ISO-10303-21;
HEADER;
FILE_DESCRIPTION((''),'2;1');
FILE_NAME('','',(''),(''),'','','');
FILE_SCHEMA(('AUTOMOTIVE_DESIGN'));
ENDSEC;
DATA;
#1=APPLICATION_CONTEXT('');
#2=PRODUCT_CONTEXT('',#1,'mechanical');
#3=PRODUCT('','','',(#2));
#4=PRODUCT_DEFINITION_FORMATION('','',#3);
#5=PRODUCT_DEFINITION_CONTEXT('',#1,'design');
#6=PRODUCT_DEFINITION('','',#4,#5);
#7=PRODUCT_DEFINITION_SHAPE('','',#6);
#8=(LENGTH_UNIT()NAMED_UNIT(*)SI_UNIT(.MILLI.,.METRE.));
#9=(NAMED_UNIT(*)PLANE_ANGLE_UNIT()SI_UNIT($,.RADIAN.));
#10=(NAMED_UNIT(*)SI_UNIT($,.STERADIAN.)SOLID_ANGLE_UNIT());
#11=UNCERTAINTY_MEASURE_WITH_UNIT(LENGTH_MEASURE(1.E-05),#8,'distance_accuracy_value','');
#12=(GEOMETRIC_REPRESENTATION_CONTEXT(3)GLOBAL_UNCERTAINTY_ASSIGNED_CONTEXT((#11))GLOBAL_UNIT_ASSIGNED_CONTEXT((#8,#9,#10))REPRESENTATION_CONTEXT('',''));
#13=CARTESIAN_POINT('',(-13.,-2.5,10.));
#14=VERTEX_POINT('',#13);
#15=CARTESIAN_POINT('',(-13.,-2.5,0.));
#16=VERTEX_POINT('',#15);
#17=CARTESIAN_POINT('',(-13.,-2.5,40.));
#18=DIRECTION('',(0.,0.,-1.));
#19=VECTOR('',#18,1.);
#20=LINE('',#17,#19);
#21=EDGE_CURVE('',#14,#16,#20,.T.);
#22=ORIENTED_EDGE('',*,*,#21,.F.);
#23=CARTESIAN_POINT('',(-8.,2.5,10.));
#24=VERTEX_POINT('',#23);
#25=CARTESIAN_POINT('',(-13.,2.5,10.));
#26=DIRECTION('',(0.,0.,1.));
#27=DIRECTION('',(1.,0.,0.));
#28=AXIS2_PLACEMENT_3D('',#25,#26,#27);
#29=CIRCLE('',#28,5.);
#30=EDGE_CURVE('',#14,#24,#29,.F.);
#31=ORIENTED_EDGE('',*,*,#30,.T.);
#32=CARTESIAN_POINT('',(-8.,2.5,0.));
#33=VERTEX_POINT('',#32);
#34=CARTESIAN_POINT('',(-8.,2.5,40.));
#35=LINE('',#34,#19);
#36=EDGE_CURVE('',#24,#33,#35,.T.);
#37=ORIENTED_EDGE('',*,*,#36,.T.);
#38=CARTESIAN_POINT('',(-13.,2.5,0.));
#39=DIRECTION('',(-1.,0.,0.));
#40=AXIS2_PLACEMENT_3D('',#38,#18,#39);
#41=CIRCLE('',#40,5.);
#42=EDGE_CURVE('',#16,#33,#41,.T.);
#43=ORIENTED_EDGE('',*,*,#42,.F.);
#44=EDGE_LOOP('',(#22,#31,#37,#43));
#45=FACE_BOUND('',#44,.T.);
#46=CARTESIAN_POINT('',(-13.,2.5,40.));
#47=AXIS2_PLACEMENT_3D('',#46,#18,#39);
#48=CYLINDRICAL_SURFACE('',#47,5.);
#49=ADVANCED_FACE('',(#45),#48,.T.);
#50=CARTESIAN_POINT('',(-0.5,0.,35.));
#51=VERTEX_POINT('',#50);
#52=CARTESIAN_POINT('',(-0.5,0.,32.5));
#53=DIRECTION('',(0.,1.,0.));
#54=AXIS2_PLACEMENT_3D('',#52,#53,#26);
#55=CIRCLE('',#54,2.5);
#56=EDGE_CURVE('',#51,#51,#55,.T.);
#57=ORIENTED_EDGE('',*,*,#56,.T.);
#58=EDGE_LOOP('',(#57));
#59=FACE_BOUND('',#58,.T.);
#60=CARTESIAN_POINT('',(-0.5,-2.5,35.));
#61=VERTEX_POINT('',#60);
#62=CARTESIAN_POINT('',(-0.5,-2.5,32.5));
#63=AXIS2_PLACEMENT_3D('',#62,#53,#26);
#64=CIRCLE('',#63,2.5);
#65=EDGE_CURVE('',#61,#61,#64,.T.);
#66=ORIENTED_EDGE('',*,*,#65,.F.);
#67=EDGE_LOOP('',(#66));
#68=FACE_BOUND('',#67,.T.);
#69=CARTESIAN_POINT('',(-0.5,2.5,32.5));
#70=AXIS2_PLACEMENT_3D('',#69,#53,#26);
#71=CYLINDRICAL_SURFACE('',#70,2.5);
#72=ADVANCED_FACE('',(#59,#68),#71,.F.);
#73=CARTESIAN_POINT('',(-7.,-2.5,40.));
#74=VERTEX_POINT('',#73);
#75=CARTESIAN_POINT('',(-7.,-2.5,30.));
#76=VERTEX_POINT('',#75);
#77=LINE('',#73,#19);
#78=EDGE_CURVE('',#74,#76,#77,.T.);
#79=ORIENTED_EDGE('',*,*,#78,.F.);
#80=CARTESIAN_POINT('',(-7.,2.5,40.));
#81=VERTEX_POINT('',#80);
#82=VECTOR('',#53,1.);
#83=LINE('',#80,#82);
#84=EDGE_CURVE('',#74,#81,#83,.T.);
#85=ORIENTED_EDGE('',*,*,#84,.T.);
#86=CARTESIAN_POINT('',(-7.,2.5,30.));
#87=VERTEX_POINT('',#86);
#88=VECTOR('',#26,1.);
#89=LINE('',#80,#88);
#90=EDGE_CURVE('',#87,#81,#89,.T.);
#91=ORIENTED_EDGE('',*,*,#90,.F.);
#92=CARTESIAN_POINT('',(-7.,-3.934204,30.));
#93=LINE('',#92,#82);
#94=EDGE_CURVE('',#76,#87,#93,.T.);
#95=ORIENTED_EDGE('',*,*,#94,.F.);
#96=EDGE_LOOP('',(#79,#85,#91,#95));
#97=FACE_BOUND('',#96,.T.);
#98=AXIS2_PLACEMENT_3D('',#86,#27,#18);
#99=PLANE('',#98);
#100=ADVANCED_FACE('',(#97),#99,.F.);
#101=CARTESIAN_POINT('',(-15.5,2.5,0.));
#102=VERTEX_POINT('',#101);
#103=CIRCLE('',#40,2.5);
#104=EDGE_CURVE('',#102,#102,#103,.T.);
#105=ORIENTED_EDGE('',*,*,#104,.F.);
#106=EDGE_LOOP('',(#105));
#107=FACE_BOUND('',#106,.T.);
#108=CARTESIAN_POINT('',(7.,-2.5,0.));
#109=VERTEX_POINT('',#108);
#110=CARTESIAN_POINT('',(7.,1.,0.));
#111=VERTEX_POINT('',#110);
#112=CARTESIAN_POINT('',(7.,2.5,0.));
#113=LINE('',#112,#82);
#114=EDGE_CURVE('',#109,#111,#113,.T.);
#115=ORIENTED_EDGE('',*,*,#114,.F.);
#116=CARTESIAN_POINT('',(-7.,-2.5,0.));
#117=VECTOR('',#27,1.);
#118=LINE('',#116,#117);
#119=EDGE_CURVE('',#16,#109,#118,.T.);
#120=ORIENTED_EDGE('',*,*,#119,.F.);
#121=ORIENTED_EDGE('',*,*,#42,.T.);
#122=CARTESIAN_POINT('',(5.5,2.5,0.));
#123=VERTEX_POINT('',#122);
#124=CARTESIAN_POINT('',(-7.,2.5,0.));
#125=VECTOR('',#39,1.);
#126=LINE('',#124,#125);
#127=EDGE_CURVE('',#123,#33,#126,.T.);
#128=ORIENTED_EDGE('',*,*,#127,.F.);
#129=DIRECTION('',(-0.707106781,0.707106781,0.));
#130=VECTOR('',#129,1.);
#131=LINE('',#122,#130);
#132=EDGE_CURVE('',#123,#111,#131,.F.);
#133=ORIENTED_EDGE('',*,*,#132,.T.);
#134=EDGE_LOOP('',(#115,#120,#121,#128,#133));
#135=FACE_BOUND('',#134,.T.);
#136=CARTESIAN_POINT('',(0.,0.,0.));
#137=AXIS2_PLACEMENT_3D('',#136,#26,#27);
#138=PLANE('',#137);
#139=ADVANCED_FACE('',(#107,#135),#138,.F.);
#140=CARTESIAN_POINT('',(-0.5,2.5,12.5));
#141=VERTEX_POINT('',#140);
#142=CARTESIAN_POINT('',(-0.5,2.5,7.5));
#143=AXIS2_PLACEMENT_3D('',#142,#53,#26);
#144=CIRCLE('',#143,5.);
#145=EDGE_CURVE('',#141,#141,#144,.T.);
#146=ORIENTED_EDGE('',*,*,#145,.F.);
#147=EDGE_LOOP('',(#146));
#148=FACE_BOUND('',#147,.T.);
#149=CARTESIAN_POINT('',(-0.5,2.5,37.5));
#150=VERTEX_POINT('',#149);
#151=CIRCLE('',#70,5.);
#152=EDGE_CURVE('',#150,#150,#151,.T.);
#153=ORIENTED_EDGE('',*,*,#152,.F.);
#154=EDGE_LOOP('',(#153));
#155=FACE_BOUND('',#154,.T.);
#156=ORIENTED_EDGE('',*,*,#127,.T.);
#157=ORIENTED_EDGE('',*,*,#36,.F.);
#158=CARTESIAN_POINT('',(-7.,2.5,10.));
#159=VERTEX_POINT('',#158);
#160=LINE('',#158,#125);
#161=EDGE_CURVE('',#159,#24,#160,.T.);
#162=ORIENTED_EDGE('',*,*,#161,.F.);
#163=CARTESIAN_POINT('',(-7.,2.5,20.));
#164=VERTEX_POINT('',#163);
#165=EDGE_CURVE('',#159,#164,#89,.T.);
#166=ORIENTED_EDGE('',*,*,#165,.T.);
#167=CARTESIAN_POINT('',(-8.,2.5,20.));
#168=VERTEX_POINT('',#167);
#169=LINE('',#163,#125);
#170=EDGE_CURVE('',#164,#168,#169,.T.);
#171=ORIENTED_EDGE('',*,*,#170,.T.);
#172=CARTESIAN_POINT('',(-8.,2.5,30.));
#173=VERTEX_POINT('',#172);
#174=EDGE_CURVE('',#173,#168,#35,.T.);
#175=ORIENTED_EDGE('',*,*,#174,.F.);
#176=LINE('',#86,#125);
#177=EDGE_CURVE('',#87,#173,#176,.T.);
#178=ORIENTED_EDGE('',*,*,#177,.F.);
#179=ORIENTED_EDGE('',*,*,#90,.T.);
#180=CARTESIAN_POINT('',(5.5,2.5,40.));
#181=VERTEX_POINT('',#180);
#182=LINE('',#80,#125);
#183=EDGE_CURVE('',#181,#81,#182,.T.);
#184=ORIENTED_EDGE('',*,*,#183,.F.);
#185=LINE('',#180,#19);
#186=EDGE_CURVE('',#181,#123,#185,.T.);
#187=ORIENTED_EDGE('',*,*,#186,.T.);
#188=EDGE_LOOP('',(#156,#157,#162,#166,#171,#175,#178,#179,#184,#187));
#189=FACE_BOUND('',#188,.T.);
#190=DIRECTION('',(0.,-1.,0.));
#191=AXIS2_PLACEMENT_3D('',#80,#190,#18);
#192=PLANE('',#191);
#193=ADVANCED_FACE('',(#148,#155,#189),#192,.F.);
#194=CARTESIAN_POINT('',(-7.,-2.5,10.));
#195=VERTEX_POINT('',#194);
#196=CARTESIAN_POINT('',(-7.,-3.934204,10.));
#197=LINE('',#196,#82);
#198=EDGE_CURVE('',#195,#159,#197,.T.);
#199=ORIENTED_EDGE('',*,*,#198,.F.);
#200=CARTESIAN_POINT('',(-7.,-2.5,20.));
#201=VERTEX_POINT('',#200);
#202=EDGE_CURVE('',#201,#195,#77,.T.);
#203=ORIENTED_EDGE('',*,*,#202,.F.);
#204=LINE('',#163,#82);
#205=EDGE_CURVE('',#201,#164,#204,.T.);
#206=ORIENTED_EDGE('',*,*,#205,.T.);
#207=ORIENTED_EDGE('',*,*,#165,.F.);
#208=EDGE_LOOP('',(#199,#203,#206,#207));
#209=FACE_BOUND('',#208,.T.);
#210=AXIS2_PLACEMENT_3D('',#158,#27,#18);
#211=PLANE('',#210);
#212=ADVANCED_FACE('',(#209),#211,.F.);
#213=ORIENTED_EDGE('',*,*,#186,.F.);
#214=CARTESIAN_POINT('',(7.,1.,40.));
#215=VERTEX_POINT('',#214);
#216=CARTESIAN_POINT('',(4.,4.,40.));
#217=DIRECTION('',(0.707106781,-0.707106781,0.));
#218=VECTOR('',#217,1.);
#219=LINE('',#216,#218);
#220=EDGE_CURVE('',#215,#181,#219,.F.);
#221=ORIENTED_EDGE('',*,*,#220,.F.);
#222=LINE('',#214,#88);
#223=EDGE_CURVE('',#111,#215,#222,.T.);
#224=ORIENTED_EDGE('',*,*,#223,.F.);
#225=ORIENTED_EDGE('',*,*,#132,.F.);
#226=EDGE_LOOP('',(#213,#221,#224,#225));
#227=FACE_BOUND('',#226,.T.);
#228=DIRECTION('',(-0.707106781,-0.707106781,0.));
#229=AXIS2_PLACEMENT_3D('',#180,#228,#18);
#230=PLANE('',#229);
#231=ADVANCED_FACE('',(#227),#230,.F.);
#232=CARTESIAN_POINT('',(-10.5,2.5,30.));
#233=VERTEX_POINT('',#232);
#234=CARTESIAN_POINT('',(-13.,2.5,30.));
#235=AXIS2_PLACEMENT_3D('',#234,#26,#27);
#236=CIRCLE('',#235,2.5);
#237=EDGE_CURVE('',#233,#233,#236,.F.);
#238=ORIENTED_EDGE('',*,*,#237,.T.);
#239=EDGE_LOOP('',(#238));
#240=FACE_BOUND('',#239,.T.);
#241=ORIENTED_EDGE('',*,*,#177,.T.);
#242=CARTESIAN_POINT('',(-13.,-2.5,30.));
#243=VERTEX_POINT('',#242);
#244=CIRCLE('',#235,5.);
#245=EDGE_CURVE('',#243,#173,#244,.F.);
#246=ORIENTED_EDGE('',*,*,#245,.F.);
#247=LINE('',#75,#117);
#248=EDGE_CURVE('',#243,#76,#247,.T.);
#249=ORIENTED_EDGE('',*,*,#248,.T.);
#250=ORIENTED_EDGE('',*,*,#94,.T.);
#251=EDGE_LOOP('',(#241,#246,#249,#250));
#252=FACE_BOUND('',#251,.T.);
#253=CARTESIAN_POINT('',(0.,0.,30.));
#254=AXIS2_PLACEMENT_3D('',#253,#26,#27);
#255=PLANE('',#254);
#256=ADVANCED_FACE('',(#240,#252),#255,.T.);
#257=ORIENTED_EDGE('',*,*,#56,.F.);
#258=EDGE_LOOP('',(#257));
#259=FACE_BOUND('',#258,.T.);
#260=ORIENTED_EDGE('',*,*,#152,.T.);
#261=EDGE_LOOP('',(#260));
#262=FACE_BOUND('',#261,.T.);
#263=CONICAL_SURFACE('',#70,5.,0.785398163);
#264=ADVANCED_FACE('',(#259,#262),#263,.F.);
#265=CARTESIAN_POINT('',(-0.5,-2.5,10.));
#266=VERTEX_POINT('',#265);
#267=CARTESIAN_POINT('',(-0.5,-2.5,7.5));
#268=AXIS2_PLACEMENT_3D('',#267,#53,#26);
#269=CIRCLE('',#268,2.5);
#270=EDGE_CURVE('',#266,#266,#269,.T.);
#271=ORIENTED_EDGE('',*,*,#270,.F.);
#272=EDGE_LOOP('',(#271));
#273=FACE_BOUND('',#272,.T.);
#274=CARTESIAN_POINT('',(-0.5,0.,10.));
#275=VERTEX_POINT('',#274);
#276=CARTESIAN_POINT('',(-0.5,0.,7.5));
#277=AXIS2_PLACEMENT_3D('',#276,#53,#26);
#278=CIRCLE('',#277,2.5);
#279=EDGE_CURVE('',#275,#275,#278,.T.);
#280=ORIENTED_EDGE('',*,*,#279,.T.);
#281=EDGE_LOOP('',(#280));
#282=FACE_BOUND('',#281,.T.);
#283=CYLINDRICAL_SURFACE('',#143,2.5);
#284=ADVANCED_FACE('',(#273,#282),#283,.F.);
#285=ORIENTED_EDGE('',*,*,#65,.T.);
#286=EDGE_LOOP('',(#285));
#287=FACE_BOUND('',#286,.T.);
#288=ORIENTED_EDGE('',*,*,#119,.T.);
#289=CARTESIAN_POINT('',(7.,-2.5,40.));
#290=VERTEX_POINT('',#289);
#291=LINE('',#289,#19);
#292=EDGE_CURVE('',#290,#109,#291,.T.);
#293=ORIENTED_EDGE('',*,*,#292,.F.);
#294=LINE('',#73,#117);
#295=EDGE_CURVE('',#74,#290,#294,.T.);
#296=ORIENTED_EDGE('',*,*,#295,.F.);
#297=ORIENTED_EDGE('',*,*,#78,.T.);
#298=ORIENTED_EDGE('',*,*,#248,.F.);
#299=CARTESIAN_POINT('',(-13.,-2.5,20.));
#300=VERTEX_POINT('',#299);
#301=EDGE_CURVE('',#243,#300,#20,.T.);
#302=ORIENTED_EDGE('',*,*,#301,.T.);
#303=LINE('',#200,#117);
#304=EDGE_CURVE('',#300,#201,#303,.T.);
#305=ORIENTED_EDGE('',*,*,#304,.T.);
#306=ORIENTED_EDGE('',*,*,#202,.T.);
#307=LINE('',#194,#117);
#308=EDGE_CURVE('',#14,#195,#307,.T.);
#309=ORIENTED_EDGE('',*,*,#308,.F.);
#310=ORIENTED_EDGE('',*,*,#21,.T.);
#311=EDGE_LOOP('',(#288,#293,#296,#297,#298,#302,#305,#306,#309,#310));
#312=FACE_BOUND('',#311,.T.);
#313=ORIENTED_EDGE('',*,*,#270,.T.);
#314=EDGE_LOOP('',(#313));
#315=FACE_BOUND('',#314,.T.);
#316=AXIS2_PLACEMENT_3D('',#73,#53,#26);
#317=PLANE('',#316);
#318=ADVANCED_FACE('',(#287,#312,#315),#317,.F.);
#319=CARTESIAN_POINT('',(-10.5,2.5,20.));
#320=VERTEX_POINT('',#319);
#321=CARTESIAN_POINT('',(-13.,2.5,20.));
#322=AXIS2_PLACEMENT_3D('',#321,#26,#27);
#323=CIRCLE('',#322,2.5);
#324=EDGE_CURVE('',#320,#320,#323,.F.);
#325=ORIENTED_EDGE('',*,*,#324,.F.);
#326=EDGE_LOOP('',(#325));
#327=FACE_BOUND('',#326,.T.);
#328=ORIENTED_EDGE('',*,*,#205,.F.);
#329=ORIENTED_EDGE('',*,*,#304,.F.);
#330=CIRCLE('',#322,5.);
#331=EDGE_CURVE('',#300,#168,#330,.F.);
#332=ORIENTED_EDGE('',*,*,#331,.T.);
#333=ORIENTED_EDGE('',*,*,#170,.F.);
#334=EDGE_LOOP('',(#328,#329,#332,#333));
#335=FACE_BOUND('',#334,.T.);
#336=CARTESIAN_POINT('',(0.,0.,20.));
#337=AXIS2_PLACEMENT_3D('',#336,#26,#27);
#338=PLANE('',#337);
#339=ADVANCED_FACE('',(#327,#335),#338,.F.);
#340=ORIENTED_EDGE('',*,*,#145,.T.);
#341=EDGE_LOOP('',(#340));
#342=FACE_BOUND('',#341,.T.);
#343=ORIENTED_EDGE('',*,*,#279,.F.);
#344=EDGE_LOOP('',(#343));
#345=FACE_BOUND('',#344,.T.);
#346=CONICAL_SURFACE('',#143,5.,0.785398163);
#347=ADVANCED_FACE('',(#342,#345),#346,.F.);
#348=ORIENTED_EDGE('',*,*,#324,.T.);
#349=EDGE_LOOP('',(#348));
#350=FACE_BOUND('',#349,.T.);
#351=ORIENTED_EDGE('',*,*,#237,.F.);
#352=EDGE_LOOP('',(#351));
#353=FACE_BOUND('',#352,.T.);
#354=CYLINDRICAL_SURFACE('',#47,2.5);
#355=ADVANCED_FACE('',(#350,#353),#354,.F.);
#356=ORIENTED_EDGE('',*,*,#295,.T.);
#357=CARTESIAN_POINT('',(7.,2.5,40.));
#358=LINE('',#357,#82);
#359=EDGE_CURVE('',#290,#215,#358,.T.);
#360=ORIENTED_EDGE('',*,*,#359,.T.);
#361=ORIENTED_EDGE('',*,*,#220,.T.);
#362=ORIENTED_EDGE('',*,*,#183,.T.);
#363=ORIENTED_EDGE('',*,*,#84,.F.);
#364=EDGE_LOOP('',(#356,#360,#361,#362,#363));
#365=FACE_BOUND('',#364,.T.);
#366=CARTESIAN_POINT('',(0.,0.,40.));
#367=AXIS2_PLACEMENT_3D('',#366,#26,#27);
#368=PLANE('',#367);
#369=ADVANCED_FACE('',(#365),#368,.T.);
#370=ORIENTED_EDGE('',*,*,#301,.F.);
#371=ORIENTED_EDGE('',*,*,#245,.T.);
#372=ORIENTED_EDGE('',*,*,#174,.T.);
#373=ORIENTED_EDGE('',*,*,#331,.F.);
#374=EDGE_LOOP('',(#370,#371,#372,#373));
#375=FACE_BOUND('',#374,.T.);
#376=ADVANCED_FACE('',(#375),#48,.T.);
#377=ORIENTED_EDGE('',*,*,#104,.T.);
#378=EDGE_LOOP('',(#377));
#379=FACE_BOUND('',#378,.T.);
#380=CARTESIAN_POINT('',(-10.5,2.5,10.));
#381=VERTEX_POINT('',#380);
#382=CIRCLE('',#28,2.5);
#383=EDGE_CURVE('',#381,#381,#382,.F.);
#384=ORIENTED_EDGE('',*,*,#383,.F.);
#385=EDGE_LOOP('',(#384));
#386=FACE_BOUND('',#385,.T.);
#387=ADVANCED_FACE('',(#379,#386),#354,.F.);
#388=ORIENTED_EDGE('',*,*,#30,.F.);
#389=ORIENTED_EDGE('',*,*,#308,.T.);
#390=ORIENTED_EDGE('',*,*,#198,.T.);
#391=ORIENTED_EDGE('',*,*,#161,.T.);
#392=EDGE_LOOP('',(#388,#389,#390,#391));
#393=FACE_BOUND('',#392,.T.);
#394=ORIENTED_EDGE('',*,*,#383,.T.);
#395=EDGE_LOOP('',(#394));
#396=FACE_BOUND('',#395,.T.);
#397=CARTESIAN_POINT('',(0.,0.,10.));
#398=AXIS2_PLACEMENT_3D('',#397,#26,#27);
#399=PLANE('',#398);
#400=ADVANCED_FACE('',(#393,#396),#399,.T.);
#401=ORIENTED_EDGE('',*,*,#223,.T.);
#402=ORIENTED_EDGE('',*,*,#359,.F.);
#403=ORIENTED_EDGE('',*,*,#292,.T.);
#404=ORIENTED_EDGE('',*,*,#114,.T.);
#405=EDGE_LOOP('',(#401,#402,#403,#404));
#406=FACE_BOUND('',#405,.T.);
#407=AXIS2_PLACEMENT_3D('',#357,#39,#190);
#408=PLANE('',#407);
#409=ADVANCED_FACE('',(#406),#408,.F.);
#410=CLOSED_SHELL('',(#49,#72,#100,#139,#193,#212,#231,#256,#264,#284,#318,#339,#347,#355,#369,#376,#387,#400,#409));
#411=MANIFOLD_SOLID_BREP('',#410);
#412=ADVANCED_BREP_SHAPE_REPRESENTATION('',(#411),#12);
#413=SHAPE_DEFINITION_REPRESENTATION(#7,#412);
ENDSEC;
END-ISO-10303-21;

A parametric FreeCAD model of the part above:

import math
import FreeCAD as App
import Part
import Sketcher

V = App.Vector


def edges_at(feature, points):
    """Names of the edges that pass closest to the given points."""
    edges = feature.Shape.Edges
    near = lambda p: min(range(len(edges)), key=lambda i: edges[i].distToShape(Part.Vertex(*p))[0])
    return sorted({f"Edge{near(p) + 1}" for p in points})


def add_polygon(sketch, points):
    """Adds a closed chain of lines whose ends are joined by coincident constraints."""
    first, n = sketch.GeometryCount, len(points)
    for a, b in zip(points, points[1:] + points[:1]):
        sketch.addGeometry(Part.LineSegment(App.Vector(*a, 0), App.Vector(*b, 0)), False)
    for i in range(n):
        sketch.addConstraint(Sketcher.Constraint("Coincident", first + i, 2, first + (i + 1) % n, 1))

doc = App.newDocument("Part")
body = doc.addObject("PartDesign::Body", "Body")

sketch1 = body.newObject("Sketcher::SketchObject", "Sketch")
sketch1.AttachmentSupport = (doc.getObject("XY_Plane"), [""])
sketch1.MapMode = "FlatFace"
add_polygon(sketch1, [(-7, 2.5), (-7, -2.5), (7, -2.5), (7, 2.5)])
sketch1.addConstraint(Sketcher.Constraint("Vertical", 0))
sketch1.addConstraint(Sketcher.Constraint("Horizontal", 1))
sketch1.addConstraint(Sketcher.Constraint("Vertical", 2))
sketch1.addConstraint(Sketcher.Constraint("Horizontal", 3))
sketch1.addConstraint(Sketcher.Constraint("Symmetric", 0, 2, 2, 2, -1, 1))
sketch1.addConstraint(Sketcher.Constraint("DistanceX", 1, 1, 1, 2, 14.0))
sketch1.addConstraint(Sketcher.Constraint("DistanceY", 0, 2, 0, 1, 5.0))
pad1 = body.newObject("PartDesign::Pad", "Pad")
pad1.Profile = sketch1
pad1.Length = 40

sketch2 = body.newObject("Sketcher::SketchObject", "Sketch001")
sketch2.AttachmentSupport = (doc.getObject("XY_Plane"), [""])
sketch2.MapMode = "FlatFace"
sketch2.addGeometry(Part.LineSegment(V(-8, 2.5, 0), V(-7, 2.5, 0)), False)
sketch2.addGeometry(Part.LineSegment(V(-7, 2.5, 0), V(-7, -2.5, 0)), False)
sketch2.addGeometry(Part.LineSegment(V(-7, -2.5, 0), V(-13, -2.5, 0)), False)
sketch2.addGeometry(Part.ArcOfCircle(Part.Circle(V(-13, 2.5, 0), V(0, 0, 1), 5), math.radians(0), math.radians(270)), False)
sketch2.addGeometry(Part.Circle(V(-13, 2.5, 0), V(0, 0, 1), 2.5), False)
sketch2.addConstraint(Sketcher.Constraint("Coincident", 0, 2, 1, 1))
sketch2.addConstraint(Sketcher.Constraint("Coincident", 1, 2, 2, 1))
sketch2.addConstraint(Sketcher.Constraint("Tangent", 2, 2, 3, 2))
sketch2.addConstraint(Sketcher.Constraint("Coincident", 3, 1, 0, 1))
sketch2.addConstraint(Sketcher.Constraint("Horizontal", 0))
sketch2.addConstraint(Sketcher.Constraint("Vertical", 1))
sketch2.addConstraint(Sketcher.Constraint("Horizontal", 2))
sketch2.addConstraint(Sketcher.Constraint("Coincident", 4, 3, 3, 3))
sketch2.addConstraint(Sketcher.Constraint("Horizontal", 4, 3, 0, 2))
sketch2.addConstraint(Sketcher.Constraint("Diameter", 4, 5.0))
sketch2.addConstraint(Sketcher.Constraint("Radius", 3, 5.0))
sketch2.addConstraint(Sketcher.Constraint("DistanceX", 0, 1, 0, 2, 1.0))
sketch2.addConstraint(Sketcher.Constraint("DistanceX", 3, 3, -1, 1, 13.0))
sketch2.addConstraint(Sketcher.Constraint("DistanceY", -1, 1, 3, 3, 2.5))
pad2 = body.newObject("PartDesign::Pad", "Pad001")
pad2.Profile = sketch2
pad2.Length = 40

sketch3 = body.newObject("Sketcher::SketchObject", "Sketch002")
sketch3.AttachmentSupport = (doc.getObject("XY_Plane"), [""])
sketch3.MapMode = "FlatFace"
sketch3.AttachmentOffset = App.Placement(V(0, 0, 40), App.Rotation())
add_polygon(sketch3, [(-7, 10.867672), (-20.063851, 10.867672), (-20.063851, -3.934204), (-7, -3.934204)])
sketch3.addConstraint(Sketcher.Constraint("Horizontal", 0))
sketch3.addConstraint(Sketcher.Constraint("Vertical", 1))
sketch3.addConstraint(Sketcher.Constraint("Horizontal", 2))
sketch3.addConstraint(Sketcher.Constraint("Vertical", 3))
sketch3.addConstraint(Sketcher.Constraint("DistanceX", 2, 2, -1, 1, 7.0))
sketch3.addConstraint(Sketcher.Constraint("DistanceX", 0, 2, 0, 1, 13.063851))
sketch3.addConstraint(Sketcher.Constraint("DistanceY", 1, 2, 1, 1, 14.801877))
sketch3.addConstraint(Sketcher.Constraint("DistanceY", -1, 1, 0, 2, 10.867672))
pocket1 = body.newObject("PartDesign::Pocket", "Pocket")
pocket1.Profile = sketch3
pocket1.Length = 10
doc.recompute()

linearpattern = body.newObject("PartDesign::LinearPattern", "LinearPattern")
linearpattern.Originals = [pocket1]
linearpattern.Direction = (doc.getObject("Z_Axis"), [""])
linearpattern.Mode = "offset"
linearpattern.Offset = 20
linearpattern.Occurrences = 2
linearpattern.Reversed = True
body.Tip = linearpattern

sketch4 = body.newObject("Sketcher::SketchObject", "Sketch003")
sketch4.AttachmentSupport = (doc.getObject("XZ_Plane"), [""])
sketch4.MapMode = "FlatFace"
sketch4.AttachmentOffset = App.Placement(V(0, 0, -2.5), App.Rotation())
sketch4.addGeometry(Part.Circle(V(-0.5, 32.5, 0), V(0, 0, 1), 2.5), False)
sketch4.addGeometry(Part.Circle(V(-0.5, 7.5, 0), V(0, 0, 1), 2.5), False)
sketch4.addConstraint(Sketcher.Constraint("Equal", 0, 1))
sketch4.addConstraint(Sketcher.Constraint("Vertical", 0, 3, 1, 3))
sketch4.addConstraint(Sketcher.Constraint("Diameter", 0, 5.0))
sketch4.addConstraint(Sketcher.Constraint("DistanceY", 1, 3, 0, 3, 25.0))
sketch4.addConstraint(Sketcher.Constraint("DistanceX", 0, 3, -1, 1, 0.5))
sketch4.addConstraint(Sketcher.Constraint("DistanceY", -1, 1, 0, 3, 32.5))
doc.recompute()
hole = body.newObject("PartDesign::Hole", "Hole")
hole.Profile = sketch4
hole.ThreadType = "None"
hole.Diameter = 5
hole.DepthType = "ThroughAll"
hole.HoleCutType = "Countersink"
hole.HoleCutDiameter = 10
hole.HoleCutCountersinkAngle = 90
hole.Reversed = True
doc.recompute()

chamfer = body.newObject("PartDesign::Chamfer", "Chamfer")
chamfer.Base = (hole, edges_at(hole, [(7, 2.5, 20)]))
chamfer.Size = 1.5

doc.recompute()
